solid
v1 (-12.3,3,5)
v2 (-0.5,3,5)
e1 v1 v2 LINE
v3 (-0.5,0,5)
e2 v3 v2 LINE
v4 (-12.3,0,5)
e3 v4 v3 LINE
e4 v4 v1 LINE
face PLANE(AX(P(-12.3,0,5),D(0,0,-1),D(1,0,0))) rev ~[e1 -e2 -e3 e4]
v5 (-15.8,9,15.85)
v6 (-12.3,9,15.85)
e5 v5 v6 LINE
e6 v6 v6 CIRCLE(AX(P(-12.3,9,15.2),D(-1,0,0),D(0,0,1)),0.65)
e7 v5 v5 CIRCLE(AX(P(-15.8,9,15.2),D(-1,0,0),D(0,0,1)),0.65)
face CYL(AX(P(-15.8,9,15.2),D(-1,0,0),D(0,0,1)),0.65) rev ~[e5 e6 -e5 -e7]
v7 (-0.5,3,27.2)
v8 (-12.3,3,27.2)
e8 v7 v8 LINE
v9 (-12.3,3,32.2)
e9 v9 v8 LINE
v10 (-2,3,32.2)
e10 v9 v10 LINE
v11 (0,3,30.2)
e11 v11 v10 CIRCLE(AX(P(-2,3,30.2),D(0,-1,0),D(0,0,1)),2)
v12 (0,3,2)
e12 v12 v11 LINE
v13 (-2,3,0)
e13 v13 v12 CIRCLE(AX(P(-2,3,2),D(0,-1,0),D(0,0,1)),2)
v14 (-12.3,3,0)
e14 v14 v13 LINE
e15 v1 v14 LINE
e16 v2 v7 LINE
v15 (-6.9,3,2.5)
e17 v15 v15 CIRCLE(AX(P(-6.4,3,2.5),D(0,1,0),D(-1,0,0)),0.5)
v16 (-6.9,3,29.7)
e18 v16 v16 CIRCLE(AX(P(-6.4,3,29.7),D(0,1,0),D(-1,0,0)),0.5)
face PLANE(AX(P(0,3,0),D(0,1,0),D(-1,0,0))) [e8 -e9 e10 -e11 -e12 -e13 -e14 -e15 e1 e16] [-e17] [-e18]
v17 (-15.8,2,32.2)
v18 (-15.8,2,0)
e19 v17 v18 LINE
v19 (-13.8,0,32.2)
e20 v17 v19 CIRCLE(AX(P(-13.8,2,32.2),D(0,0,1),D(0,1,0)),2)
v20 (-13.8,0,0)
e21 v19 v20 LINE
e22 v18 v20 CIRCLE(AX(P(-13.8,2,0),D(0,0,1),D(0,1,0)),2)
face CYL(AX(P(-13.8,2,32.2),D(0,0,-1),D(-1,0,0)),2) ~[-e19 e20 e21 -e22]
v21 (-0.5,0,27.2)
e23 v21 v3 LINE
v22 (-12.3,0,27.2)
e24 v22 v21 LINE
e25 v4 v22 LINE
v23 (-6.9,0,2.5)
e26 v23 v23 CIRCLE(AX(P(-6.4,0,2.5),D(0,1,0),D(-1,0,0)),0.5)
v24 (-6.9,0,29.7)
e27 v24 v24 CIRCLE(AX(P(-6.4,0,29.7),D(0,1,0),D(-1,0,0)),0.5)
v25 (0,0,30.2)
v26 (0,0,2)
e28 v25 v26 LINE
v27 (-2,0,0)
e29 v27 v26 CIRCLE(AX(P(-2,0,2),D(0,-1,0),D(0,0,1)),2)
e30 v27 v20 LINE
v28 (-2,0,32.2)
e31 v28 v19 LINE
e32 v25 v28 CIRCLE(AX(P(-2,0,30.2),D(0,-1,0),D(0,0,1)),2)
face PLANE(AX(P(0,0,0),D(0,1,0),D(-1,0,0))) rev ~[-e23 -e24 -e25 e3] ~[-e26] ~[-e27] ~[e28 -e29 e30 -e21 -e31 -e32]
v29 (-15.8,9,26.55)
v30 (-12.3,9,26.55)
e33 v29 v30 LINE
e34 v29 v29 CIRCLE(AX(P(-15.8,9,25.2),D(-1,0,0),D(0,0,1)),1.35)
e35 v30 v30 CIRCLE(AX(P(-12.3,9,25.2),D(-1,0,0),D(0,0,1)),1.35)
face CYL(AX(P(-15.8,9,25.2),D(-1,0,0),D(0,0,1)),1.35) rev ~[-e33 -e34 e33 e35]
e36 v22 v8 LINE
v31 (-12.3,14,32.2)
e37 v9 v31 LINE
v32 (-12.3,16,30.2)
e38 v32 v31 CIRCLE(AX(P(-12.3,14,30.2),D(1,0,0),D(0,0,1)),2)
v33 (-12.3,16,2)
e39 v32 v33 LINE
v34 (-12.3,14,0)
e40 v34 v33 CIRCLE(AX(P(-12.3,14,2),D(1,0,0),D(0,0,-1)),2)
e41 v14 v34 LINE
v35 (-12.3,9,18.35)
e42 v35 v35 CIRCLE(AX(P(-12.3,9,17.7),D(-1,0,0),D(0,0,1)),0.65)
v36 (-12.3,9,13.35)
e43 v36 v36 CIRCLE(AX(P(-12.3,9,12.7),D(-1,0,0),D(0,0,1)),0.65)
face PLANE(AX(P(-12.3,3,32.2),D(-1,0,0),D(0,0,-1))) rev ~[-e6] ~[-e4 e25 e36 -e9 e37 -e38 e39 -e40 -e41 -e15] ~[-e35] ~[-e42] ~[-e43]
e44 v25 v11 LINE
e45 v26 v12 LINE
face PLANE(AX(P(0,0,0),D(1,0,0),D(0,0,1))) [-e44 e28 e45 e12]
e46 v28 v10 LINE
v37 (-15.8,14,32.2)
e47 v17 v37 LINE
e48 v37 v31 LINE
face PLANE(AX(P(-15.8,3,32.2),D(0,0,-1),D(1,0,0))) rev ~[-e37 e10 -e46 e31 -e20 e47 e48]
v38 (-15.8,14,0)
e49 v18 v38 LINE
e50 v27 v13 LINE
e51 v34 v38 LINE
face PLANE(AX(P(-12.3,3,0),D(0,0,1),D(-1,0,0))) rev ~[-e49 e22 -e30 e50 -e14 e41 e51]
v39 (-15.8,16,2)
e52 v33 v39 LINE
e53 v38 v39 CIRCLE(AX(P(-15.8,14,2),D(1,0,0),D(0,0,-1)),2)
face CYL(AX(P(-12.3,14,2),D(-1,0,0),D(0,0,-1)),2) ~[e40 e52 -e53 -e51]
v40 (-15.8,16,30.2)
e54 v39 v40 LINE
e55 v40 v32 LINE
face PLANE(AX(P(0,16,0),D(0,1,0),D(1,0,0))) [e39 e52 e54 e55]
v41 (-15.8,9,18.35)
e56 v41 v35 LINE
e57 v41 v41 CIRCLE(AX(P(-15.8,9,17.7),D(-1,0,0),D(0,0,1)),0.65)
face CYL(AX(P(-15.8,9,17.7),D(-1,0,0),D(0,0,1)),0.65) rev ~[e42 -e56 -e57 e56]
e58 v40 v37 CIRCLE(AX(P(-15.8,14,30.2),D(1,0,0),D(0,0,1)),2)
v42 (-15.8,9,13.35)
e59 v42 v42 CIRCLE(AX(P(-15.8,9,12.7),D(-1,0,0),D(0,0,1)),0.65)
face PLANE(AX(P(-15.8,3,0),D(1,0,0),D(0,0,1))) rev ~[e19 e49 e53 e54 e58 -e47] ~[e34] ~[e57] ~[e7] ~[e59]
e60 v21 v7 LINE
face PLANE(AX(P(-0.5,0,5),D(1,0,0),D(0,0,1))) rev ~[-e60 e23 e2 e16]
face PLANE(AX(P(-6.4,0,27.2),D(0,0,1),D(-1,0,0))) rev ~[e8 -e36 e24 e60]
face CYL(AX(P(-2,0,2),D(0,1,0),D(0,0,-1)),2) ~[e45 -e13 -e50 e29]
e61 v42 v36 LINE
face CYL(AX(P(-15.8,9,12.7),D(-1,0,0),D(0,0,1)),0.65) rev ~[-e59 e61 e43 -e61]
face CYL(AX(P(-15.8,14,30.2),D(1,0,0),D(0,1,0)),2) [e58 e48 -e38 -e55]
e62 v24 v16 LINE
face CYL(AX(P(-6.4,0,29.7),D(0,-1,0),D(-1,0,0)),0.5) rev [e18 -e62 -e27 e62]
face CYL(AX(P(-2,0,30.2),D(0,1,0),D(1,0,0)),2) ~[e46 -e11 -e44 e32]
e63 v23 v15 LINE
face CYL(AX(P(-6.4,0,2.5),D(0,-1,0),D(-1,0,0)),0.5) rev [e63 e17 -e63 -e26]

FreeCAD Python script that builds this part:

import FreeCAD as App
import Part
import Sketcher
Q = App.Units.Quantity


def edges_at(feature, points):
    """Names of the edges that pass closest to the given points."""
    edges = feature.Shape.Edges
    near = lambda p: min(range(len(edges)), key=lambda i: edges[i].distToShape(Part.Vertex(*p))[0])
    return sorted({f"Edge{near(p) + 1}" for p in points})

doc = App.newDocument("Part")
body = doc.addObject("PartDesign::Body", "Body")

# Sketch on XZ plane
sketch1 = body.newObject("Sketcher::SketchObject", "Sketch")
sketch1.AttachmentSupport = (doc.getObject("XZ_Plane"), [""])
sketch1.MapMode = "FlatFace"
sketch1.addGeometry([
    Part.LineSegment(App.Vector(0, 0, 0), App.Vector(-15.8, 0, 0)),  # 0
    Part.LineSegment(App.Vector(-15.8, 0, 0), App.Vector(-15.8, 32.2, 0)),  # 1
    Part.LineSegment(App.Vector(-15.8, 32.2, 0), App.Vector(0, 32.2, 0)),  # 2
    Part.LineSegment(App.Vector(0, 32.2, 0), App.Vector(0, 0, 0)),  # 3
    Part.LineSegment(App.Vector(-0.5, 5, 0), App.Vector(-0.5, 27.2, 0)),  # 4
    Part.LineSegment(App.Vector(-0.5, 27.2, 0), App.Vector(-12.3, 27.2, 0)),  # 5
    Part.LineSegment(App.Vector(-12.3, 27.2, 0), App.Vector(-12.3, 5, 0)),  # 6
    Part.LineSegment(App.Vector(-12.3, 5, 0), App.Vector(-0.5, 5, 0)),  # 7
    Part.Circle(App.Vector(-6.4, 2.5, 0), App.Vector(0, 0, 1), 0.5),  # 8
    Part.Circle(App.Vector(-6.4, 29.7, 0), App.Vector(0, 0, 1), 0.5),  # 9
], False)
sketch1.addConstraint([
    Sketcher.Constraint("Coincident", 0, 2, 1, 1),
    Sketcher.Constraint("Coincident", 1, 2, 2, 1),
    Sketcher.Constraint("Coincident", 2, 2, 3, 1),
    Sketcher.Constraint("Coincident", 3, 2, 0, 1),
    Sketcher.Constraint("Coincident", 4, 2, 5, 1),
    Sketcher.Constraint("Coincident", 5, 2, 6, 1),
    Sketcher.Constraint("Coincident", 6, 2, 7, 1),
    Sketcher.Constraint("Coincident", 7, 2, 4, 1),
    Sketcher.Constraint("Horizontal", 0),
    Sketcher.Constraint("Vertical", 1),
    Sketcher.Constraint("Horizontal", 2),
    Sketcher.Constraint("Vertical", 3),
    Sketcher.Constraint("Vertical", 4),
    Sketcher.Constraint("Horizontal", 5),
    Sketcher.Constraint("Vertical", 6),
    Sketcher.Constraint("Horizontal", 7),
    Sketcher.Constraint("Coincident", 3, 2, -1, 1),
    Sketcher.Constraint("Equal", 8, 9),
    Sketcher.Constraint("Vertical", 8, 3, 9, 3),
    Sketcher.Constraint("Diameter", 8, Q("1 mm")),
    Sketcher.Constraint("DistanceX", 5, 2, 5, 1, Q("11.8 mm")),
    Sketcher.Constraint("DistanceX", 9, 3, 4, 2, Q("5.9 mm")),
    Sketcher.Constraint("DistanceX", 0, 2, 0, 1, Q("15.8 mm")),
    Sketcher.Constraint("DistanceY", 1, 1, 1, 2, Q("32.2 mm")),
    Sketcher.Constraint("DistanceY", 4, 1, 4, 2, Q("22.2 mm")),
    Sketcher.Constraint("DistanceY", -1, 1, 6, 2, Q("5 mm")),
    Sketcher.Constraint("DistanceX", 8, 3, -1, 1, Q("6.4 mm")),
    Sketcher.Constraint("DistanceY", -1, 1, 8, 3, Q("2.5 mm")),
    Sketcher.Constraint("DistanceY", -1, 1, 9, 3, Q("29.7 mm")),
])
pad1 = body.newObject("PartDesign::Pad", "Pad")
pad1.Profile = sketch1
pad1.Length = 3
pad1.Reversed = True

# Sketch on XZ plane
sketch2 = body.newObject("Sketcher::SketchObject", "Sketch001")
sketch2.AttachmentSupport = (doc.getObject("XZ_Plane"), [""])
sketch2.MapMode = "FlatFace"
sketch2.AttachmentOffset = App.Placement(App.Vector(0, 0, -3), App.Rotation())
sketch2.addGeometry([
    Part.LineSegment(App.Vector(-12.3, 0, 0), App.Vector(-15.8, 0, 0)),
    Part.LineSegment(App.Vector(-15.8, 0, 0), App.Vector(-15.8, 32.2, 0)),
    Part.LineSegment(App.Vector(-15.8, 32.2, 0), App.Vector(-12.3, 32.2, 0)),
    Part.LineSegment(App.Vector(-12.3, 32.2, 0), App.Vector(-12.3, 0, 0)),
], False)
sketch2.addConstraint([
    Sketcher.Constraint("Coincident", 0, 2, 1, 1),
    Sketcher.Constraint("Coincident", 1, 2, 2, 1),
    Sketcher.Constraint("Coincident", 2, 2, 3, 1),
    Sketcher.Constraint("Coincident", 3, 2, 0, 1),
    Sketcher.Constraint("Horizontal", 0),
    Sketcher.Constraint("Vertical", 1),
    Sketcher.Constraint("Horizontal", 2),
    Sketcher.Constraint("Vertical", 3),
    Sketcher.Constraint("PointOnObject", 0, 2, -1),
    Sketcher.Constraint("DistanceX", 0, 2, 0, 1, Q("3.5 mm")),
    Sketcher.Constraint("DistanceY", 1, 1, 1, 2, Q("32.2 mm")),
    Sketcher.Constraint("DistanceX", 0, 2, -1, 1, Q("15.8 mm")),
])
pad2 = body.newObject("PartDesign::Pad", "Pad001")
pad2.Profile = sketch2
pad2.Length = 13
pad2.Reversed = True
doc.recompute()

fillet = body.newObject("PartDesign::Fillet", "Fillet")
fillet.Base = (pad2, edges_at(pad2, [(-15.8, 0, 16.1)]))
fillet.Radius = 2

# Sketch on YZ plane
sketch3 = body.newObject("Sketcher::SketchObject", "Sketch002")
sketch3.AttachmentSupport = (doc.getObject("YZ_Plane"), [""])
sketch3.MapMode = "FlatFace"
sketch3.AttachmentOffset = App.Placement(App.Vector(0, 0, -15.8), App.Rotation())
sketch3.addGeometry([
    Part.Circle(App.Vector(9, 25.2, 0), App.Vector(0, 0, 1), 1.4),
    Part.Circle(App.Vector(9, 17.7, 0), App.Vector(0, 0, 1), 0.7),
    Part.Circle(App.Vector(9, 15.2, 0), App.Vector(0, 0, 1), 0.7),
    Part.Circle(App.Vector(9, 12.7, 0), App.Vector(0, 0, 1), 0.7),
], False)
sketch3.addConstraint([
    Sketcher.Constraint("Equal", 1, 2),
    Sketcher.Constraint("Equal", 2, 3),
    Sketcher.Constraint("Vertical", 0, 3, 1, 3),
    Sketcher.Constraint("Vertical", 1, 3, 2, 3),
    Sketcher.Constraint("Vertical", 2, 3, 3, 3),
    Sketcher.Constraint("Diameter", 0, Q("2.7 mm")),
    Sketcher.Constraint("Diameter", 1, Q("1.3 mm")),
    Sketcher.Constraint("DistanceX", -1, 1, 0, 3, Q("9 mm")),
    Sketcher.Constraint("DistanceY", 2, 3, 0, 3, Q("10 mm")),
    Sketcher.Constraint("DistanceY", 3, 3, 1, 3, Q("5 mm")),
    Sketcher.Constraint("DistanceY", -1, 1, 0, 3, Q("25.2 mm")),
    Sketcher.Constraint("DistanceY", -1, 1, 1, 3, Q("17.7 mm")),
])
pocket1 = body.newObject("PartDesign::Pocket", "Pocket")
pocket1.Profile = sketch3
pocket1.Length = 13
pocket1.Reversed = True
doc.recompute()

fillet2 = body.newObject("PartDesign::Fillet", "Fillet001")
fillet2.Base = (pocket1, edges_at(pocket1, [
    (-14.05, 16, 0),
    (-14.05, 16, 32.2),
    (0, 1.5, 32.2),
    (0, 1.5, 0),
]))
fillet2.Radius = 2

doc.recompute()
